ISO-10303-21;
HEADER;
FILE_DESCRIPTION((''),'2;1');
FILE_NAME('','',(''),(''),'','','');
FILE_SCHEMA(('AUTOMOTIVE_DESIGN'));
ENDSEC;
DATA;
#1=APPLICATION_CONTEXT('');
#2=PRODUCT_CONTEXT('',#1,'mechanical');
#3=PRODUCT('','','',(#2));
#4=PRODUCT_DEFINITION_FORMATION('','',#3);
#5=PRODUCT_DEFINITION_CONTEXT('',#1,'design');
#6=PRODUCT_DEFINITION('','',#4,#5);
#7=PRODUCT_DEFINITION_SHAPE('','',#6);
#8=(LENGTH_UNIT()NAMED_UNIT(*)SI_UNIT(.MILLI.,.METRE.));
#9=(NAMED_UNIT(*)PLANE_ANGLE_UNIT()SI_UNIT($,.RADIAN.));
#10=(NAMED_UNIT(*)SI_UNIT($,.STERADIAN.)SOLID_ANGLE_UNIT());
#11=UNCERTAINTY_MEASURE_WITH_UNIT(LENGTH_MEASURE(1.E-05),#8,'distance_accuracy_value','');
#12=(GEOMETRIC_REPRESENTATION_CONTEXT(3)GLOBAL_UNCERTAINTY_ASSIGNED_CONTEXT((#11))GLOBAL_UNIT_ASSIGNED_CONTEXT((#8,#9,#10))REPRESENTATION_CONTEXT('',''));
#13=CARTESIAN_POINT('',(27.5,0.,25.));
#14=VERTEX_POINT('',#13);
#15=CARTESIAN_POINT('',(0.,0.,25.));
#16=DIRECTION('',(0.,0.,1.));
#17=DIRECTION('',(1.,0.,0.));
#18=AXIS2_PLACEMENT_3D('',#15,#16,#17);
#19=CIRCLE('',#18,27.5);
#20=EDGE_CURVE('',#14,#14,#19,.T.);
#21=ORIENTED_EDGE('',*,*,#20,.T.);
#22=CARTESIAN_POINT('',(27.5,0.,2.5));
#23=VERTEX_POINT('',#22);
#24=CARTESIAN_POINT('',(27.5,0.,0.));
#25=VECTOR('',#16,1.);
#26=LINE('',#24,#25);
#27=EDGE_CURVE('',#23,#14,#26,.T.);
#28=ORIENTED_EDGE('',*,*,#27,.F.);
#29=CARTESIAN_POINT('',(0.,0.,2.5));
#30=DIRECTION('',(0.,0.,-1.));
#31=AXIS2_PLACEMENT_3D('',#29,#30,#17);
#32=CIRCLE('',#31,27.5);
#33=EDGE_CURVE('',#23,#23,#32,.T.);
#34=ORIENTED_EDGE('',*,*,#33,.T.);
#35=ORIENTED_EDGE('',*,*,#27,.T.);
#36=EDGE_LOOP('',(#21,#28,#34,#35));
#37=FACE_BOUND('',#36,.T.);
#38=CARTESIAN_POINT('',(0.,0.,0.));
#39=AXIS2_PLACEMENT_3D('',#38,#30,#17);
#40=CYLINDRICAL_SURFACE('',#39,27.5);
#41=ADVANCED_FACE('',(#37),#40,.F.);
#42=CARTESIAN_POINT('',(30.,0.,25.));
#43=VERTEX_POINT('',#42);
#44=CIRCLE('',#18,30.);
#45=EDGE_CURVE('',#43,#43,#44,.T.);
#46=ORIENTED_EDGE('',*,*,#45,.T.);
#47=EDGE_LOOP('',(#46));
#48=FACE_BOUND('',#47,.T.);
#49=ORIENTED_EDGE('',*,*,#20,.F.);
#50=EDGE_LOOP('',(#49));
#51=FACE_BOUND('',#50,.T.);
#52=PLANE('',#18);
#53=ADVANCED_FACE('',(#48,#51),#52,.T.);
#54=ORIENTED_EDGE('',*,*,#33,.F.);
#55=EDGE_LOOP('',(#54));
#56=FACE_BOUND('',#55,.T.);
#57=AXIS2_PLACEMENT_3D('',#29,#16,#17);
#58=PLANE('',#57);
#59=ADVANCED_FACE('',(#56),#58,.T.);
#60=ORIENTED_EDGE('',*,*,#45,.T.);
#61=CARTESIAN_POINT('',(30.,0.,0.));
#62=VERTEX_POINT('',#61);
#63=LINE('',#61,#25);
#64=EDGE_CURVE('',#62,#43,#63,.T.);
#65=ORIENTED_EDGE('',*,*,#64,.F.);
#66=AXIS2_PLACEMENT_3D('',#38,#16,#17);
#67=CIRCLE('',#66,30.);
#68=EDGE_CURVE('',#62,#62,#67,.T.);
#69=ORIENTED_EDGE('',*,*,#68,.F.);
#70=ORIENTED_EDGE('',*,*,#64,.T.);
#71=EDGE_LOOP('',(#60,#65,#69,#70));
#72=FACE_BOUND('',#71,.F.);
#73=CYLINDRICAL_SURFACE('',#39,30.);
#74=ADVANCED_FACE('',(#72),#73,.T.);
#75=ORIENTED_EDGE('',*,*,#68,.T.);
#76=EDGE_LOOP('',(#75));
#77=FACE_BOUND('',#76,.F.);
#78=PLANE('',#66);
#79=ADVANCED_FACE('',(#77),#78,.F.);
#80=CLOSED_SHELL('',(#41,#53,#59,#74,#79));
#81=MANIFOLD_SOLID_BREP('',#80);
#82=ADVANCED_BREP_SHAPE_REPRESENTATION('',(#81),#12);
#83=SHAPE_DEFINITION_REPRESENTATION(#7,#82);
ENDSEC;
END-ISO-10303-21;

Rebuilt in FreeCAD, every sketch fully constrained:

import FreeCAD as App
import Part
import Sketcher
Q = App.Units.Quantity


def edges_at(feature, points):
    """Names of the edges that pass closest to the given points."""
    edges = feature.Shape.Edges
    near = lambda p: min(range(len(edges)), key=lambda i: edges[i].distToShape(Part.Vertex(*p))[0])
    return sorted({f"Edge{near(p) + 1}" for p in points})


def faces_at(feature, points):
    """Names of the faces that lie closest to the given points."""
    faces = feature.Shape.Faces
    near = lambda p: min(range(len(faces)), key=lambda i: faces[i].distToShape(Part.Vertex(*p))[0])
    return sorted({f"Face{near(p) + 1}" for p in points})


def add_polygon(sketch, points):
    """Adds a closed chain of lines whose ends are joined by coincident constraints."""
    first, n = sketch.GeometryCount, len(points)
    for a, b in zip(points, points[1:] + points[:1]):
        sketch.addGeometry(Part.LineSegment(App.Vector(*a, 0), App.Vector(*b, 0)), False)
    for i in range(n):
        sketch.addConstraint(Sketcher.Constraint("Coincident", first + i, 2, first + (i + 1) % n, 1))

doc = App.newDocument("Part")
body = doc.addObject("PartDesign::Body", "Body")

sketch1 = doc.addObject("Sketcher::SketchObject", "Sketch")
body.addObject(sketch1)
sketch1.AttachmentSupport = (doc.XY_Plane, [""])
sketch1.MapMode = "FlatFace"
add_polygon(sketch1, [(-100, 75), (-100, -75), (100, -75), (100, 75)])
sketch1.addConstraint(Sketcher.Constraint("Vertical", 0))
sketch1.addConstraint(Sketcher.Constraint("Horizontal", 1))
sketch1.addConstraint(Sketcher.Constraint("Vertical", 2))
sketch1.addConstraint(Sketcher.Constraint("Horizontal", 3))
sketch1.addConstraint(Sketcher.Constraint("Symmetric", 0, 2, 2, 2, -1, 1))
sketch1.addConstraint(Sketcher.Constraint("DistanceX", 1, 1, 1, 2, Q("200 mm")))
sketch1.addConstraint(Sketcher.Constraint("DistanceY", 0, 2, 0, 1, Q("150 mm")))
pad1 = doc.addObject("PartDesign::Pad", "Pad")
body.addObject(pad1)
pad1.Profile = sketch1
pad1.Length = 100
doc.recompute()

thickness = doc.addObject("PartDesign::Thickness", "Thickness")
body.addObject(thickness)
thickness.Base = (pad1, faces_at(pad1, [(0, 0, 100)]))
thickness.Value = 2.5
thickness.Reversed = True
thickness.Join = "Arc"
doc.recompute()

fillet = doc.addObject("PartDesign::Fillet", "Fillet")
body.addObject(fillet)
fillet.Base = (thickness, edges_at(thickness, [
    (-100, -75, 50),
    (-100, 75, 50),
    (100, 75, 50),
    (100, -75, 50),
]))
fillet.Radius = 5
body2 = doc.addObject("PartDesign::Body", "Body001")

sketch2 = doc.addObject("Sketcher::SketchObject", "Sketch001")
body2.addObject(sketch2)
sketch2.AttachmentSupport = (doc.getObject("XY_Plane001"), [""])
sketch2.MapMode = "FlatFace"
sketch2.addGeometry(Part.Circle(App.Vector(0, 0, 0), App.Vector(0, 0, 1), 30), False)
sketch2.addConstraint(Sketcher.Constraint("Coincident", 0, 3, -1, 1))
sketch2.addConstraint(Sketcher.Constraint("Diameter", 0, Q("60 mm")))
pad2 = doc.addObject("PartDesign::Pad", "Pad001")
body2.addObject(pad2)
pad2.Profile = sketch2
pad2.Length = 25
doc.recompute()

thickness2 = doc.addObject("PartDesign::Thickness", "Thickness001")
body2.addObject(thickness2)
thickness2.Base = (pad2, faces_at(pad2, [(0, 0, 25)]))
thickness2.Value = 2.5
thickness2.Reversed = True
thickness2.Join = "Arc"
body.Visibility = False

doc.recompute()
